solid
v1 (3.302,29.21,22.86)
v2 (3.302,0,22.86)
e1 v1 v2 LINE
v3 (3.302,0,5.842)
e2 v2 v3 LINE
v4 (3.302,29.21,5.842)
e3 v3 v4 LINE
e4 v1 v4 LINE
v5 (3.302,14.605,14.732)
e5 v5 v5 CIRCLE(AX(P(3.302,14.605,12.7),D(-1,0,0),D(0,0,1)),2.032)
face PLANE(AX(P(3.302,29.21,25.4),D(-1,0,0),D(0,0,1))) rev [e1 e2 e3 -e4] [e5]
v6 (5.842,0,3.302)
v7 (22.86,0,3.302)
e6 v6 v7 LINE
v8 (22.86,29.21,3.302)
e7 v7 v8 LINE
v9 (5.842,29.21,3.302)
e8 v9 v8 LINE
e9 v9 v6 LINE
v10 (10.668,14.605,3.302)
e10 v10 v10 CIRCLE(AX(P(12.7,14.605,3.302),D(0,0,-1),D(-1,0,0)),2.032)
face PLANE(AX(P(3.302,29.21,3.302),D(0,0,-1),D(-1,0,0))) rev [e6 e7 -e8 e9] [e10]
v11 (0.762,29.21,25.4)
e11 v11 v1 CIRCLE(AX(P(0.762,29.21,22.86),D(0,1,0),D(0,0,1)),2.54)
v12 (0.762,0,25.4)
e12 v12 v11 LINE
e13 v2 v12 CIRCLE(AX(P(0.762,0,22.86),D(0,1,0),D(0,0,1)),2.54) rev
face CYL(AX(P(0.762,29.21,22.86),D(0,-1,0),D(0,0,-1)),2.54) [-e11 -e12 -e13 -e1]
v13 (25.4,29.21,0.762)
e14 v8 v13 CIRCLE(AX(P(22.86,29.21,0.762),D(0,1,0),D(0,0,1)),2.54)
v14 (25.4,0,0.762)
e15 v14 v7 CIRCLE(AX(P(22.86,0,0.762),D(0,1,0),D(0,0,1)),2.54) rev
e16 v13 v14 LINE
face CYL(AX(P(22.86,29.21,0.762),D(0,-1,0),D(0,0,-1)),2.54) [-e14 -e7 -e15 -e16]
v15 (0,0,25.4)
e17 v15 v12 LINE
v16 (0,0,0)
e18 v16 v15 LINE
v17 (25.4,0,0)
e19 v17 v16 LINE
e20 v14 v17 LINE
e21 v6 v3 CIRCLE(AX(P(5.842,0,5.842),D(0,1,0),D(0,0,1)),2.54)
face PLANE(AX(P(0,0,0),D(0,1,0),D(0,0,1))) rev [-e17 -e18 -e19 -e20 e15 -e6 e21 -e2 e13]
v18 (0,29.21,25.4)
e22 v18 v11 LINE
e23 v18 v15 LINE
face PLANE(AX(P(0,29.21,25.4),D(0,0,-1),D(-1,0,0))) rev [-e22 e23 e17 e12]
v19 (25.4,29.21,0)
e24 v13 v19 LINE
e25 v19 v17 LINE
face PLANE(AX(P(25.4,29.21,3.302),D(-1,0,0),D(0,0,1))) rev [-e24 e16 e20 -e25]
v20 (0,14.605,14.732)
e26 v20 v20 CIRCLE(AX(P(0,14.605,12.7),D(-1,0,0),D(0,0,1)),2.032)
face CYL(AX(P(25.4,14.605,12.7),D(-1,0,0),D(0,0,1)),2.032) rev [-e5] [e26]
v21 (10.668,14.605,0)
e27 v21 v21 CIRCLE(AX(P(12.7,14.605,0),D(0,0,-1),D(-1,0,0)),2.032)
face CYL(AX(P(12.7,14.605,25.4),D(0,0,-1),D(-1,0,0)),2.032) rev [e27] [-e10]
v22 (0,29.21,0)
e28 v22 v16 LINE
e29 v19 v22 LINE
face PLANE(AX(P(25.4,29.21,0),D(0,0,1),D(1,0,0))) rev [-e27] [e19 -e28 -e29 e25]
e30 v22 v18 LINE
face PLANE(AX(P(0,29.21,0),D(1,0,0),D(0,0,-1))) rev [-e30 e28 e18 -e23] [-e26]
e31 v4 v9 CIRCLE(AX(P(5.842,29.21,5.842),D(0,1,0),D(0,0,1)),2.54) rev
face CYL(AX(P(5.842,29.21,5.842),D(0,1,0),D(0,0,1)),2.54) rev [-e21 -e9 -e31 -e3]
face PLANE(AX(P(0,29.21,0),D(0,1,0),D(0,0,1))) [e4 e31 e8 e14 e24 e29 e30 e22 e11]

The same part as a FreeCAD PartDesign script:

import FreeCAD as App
import Part
import Sketcher
Q = App.Units.Quantity


def edges_at(feature, points):
    """Names of the edges that pass closest to the given points."""
    edges = feature.Shape.Edges
    near = lambda p: min(range(len(edges)), key=lambda i: edges[i].distToShape(Part.Vertex(*p))[0])
    return sorted({f"Edge{near(p) + 1}" for p in points})

doc = App.newDocument("Part")
body = doc.addObject("PartDesign::Body", "Body")

# Sketch on XZ plane
sketch1 = body.newObject("Sketcher::SketchObject", "Sketch")
sketch1.AttachmentSupport = (doc.getObject("XZ_Plane"), [""])
sketch1.MapMode = "FlatFace"
sketch1.addGeometry(Part.LineSegment(App.Vector(0, 0, 0), App.Vector(0, 25.4, 0)), False)
sketch1.addGeometry(Part.LineSegment(App.Vector(0, 25.4, 0), App.Vector(3.3, 25.4, 0)), False)
sketch1.addGeometry(Part.LineSegment(App.Vector(3.3, 25.4, 0), App.Vector(3.3, 3.3, 0)), False)
sketch1.addGeometry(Part.LineSegment(App.Vector(3.3, 3.3, 0), App.Vector(25.4, 3.3, 0)), False)
sketch1.addGeometry(Part.LineSegment(App.Vector(25.4, 3.3, 0), App.Vector(25.4, 0, 0)), False)
sketch1.addGeometry(Part.LineSegment(App.Vector(25.4, 0, 0), App.Vector(0, 0, 0)), False)
sketch1.addConstraint(Sketcher.Constraint("Coincident", 0, 2, 1, 1))
sketch1.addConstraint(Sketcher.Constraint("Coincident", 1, 2, 2, 1))
sketch1.addConstraint(Sketcher.Constraint("Coincident", 2, 2, 3, 1))
sketch1.addConstraint(Sketcher.Constraint("Coincident", 3, 2, 4, 1))
sketch1.addConstraint(Sketcher.Constraint("Coincident", 4, 2, 5, 1))
sketch1.addConstraint(Sketcher.Constraint("Coincident", 5, 2, 0, 1))
sketch1.addConstraint(Sketcher.Constraint("Vertical", 0))
sketch1.addConstraint(Sketcher.Constraint("Horizontal", 1))
sketch1.addConstraint(Sketcher.Constraint("Vertical", 2))
sketch1.addConstraint(Sketcher.Constraint("Horizontal", 3))
sketch1.addConstraint(Sketcher.Constraint("Vertical", 4))
sketch1.addConstraint(Sketcher.Constraint("Horizontal", 5))
sketch1.addConstraint(Sketcher.Constraint("Coincident", 5, 2, -1, 1))
sketch1.addConstraint(Sketcher.Constraint("Equal", 5, 0))
sketch1.addConstraint(Sketcher.Constraint("Equal", 3, 2))
sketch1.addConstraint(Sketcher.Constraint("DistanceX", 5, 2, 5, 1, Q("1 in")))
sketch1.addConstraint(Sketcher.Constraint("DistanceX", 1, 1, 1, 2, Q("0.13 in")))
pad1 = body.newObject("PartDesign::Pad", "Pad")
pad1.Profile = sketch1
pad1.Length = Q("1.15 in")
pad1.Reversed = True
doc.recompute()

fillet = body.newObject("PartDesign::Fillet", "Fillet")
fillet.Base = (pad1, edges_at(pad1, [(25.4, 14.605, 3.302), (3.302, 14.605, 3.302), (3.302, 14.605, 25.4)]))
fillet.Radius = Q("0.1 in")

# Sketch on YZ plane
sketch2 = body.newObject("Sketcher::SketchObject", "Sketch001")
sketch2.AttachmentSupport = (doc.getObject("YZ_Plane"), [""])
sketch2.MapMode = "FlatFace"
sketch2.addGeometry(Part.Circle(App.Vector(14.6, 12.7, 0), App.Vector(0, 0, 1), 2), False)
sketch2.addConstraint(Sketcher.Constraint("Diameter", 0, Q("0.16 in")))
sketch2.addConstraint(Sketcher.Constraint("DistanceY", -1, 1, 0, 3, Q("0.5 in")))
sketch2.addConstraint(Sketcher.Constraint("DistanceX", -1, 1, 0, 3, Q("0.575 in")))
pocket1 = body.newObject("PartDesign::Pocket", "Pocket")
pocket1.Profile = sketch2
pocket1.Type = "ThroughAll"
pocket1.Reversed = True

# Sketch on XY plane
sketch3 = body.newObject("Sketcher::SketchObject", "Sketch002")
sketch3.AttachmentSupport = (doc.getObject("XY_Plane"), [""])
sketch3.MapMode = "FlatFace"
sketch3.addGeometry(Part.Circle(App.Vector(12.7, 14.6, 0), App.Vector(0, 0, 1), 2), False)
sketch3.addConstraint(Sketcher.Constraint("Diameter", 0, Q("0.16 in")))
sketch3.addConstraint(Sketcher.Constraint("DistanceX", -1, 1, 0, 3, Q("0.5 in")))
sketch3.addConstraint(Sketcher.Constraint("DistanceY", -1, 1, 0, 3, Q("0.575 in")))
pocket2 = body.newObject("PartDesign::Pocket", "Pocket001")
pocket2.Profile = sketch3
pocket2.Type = "ThroughAll"
pocket2.Reversed = True

doc.recompute()
